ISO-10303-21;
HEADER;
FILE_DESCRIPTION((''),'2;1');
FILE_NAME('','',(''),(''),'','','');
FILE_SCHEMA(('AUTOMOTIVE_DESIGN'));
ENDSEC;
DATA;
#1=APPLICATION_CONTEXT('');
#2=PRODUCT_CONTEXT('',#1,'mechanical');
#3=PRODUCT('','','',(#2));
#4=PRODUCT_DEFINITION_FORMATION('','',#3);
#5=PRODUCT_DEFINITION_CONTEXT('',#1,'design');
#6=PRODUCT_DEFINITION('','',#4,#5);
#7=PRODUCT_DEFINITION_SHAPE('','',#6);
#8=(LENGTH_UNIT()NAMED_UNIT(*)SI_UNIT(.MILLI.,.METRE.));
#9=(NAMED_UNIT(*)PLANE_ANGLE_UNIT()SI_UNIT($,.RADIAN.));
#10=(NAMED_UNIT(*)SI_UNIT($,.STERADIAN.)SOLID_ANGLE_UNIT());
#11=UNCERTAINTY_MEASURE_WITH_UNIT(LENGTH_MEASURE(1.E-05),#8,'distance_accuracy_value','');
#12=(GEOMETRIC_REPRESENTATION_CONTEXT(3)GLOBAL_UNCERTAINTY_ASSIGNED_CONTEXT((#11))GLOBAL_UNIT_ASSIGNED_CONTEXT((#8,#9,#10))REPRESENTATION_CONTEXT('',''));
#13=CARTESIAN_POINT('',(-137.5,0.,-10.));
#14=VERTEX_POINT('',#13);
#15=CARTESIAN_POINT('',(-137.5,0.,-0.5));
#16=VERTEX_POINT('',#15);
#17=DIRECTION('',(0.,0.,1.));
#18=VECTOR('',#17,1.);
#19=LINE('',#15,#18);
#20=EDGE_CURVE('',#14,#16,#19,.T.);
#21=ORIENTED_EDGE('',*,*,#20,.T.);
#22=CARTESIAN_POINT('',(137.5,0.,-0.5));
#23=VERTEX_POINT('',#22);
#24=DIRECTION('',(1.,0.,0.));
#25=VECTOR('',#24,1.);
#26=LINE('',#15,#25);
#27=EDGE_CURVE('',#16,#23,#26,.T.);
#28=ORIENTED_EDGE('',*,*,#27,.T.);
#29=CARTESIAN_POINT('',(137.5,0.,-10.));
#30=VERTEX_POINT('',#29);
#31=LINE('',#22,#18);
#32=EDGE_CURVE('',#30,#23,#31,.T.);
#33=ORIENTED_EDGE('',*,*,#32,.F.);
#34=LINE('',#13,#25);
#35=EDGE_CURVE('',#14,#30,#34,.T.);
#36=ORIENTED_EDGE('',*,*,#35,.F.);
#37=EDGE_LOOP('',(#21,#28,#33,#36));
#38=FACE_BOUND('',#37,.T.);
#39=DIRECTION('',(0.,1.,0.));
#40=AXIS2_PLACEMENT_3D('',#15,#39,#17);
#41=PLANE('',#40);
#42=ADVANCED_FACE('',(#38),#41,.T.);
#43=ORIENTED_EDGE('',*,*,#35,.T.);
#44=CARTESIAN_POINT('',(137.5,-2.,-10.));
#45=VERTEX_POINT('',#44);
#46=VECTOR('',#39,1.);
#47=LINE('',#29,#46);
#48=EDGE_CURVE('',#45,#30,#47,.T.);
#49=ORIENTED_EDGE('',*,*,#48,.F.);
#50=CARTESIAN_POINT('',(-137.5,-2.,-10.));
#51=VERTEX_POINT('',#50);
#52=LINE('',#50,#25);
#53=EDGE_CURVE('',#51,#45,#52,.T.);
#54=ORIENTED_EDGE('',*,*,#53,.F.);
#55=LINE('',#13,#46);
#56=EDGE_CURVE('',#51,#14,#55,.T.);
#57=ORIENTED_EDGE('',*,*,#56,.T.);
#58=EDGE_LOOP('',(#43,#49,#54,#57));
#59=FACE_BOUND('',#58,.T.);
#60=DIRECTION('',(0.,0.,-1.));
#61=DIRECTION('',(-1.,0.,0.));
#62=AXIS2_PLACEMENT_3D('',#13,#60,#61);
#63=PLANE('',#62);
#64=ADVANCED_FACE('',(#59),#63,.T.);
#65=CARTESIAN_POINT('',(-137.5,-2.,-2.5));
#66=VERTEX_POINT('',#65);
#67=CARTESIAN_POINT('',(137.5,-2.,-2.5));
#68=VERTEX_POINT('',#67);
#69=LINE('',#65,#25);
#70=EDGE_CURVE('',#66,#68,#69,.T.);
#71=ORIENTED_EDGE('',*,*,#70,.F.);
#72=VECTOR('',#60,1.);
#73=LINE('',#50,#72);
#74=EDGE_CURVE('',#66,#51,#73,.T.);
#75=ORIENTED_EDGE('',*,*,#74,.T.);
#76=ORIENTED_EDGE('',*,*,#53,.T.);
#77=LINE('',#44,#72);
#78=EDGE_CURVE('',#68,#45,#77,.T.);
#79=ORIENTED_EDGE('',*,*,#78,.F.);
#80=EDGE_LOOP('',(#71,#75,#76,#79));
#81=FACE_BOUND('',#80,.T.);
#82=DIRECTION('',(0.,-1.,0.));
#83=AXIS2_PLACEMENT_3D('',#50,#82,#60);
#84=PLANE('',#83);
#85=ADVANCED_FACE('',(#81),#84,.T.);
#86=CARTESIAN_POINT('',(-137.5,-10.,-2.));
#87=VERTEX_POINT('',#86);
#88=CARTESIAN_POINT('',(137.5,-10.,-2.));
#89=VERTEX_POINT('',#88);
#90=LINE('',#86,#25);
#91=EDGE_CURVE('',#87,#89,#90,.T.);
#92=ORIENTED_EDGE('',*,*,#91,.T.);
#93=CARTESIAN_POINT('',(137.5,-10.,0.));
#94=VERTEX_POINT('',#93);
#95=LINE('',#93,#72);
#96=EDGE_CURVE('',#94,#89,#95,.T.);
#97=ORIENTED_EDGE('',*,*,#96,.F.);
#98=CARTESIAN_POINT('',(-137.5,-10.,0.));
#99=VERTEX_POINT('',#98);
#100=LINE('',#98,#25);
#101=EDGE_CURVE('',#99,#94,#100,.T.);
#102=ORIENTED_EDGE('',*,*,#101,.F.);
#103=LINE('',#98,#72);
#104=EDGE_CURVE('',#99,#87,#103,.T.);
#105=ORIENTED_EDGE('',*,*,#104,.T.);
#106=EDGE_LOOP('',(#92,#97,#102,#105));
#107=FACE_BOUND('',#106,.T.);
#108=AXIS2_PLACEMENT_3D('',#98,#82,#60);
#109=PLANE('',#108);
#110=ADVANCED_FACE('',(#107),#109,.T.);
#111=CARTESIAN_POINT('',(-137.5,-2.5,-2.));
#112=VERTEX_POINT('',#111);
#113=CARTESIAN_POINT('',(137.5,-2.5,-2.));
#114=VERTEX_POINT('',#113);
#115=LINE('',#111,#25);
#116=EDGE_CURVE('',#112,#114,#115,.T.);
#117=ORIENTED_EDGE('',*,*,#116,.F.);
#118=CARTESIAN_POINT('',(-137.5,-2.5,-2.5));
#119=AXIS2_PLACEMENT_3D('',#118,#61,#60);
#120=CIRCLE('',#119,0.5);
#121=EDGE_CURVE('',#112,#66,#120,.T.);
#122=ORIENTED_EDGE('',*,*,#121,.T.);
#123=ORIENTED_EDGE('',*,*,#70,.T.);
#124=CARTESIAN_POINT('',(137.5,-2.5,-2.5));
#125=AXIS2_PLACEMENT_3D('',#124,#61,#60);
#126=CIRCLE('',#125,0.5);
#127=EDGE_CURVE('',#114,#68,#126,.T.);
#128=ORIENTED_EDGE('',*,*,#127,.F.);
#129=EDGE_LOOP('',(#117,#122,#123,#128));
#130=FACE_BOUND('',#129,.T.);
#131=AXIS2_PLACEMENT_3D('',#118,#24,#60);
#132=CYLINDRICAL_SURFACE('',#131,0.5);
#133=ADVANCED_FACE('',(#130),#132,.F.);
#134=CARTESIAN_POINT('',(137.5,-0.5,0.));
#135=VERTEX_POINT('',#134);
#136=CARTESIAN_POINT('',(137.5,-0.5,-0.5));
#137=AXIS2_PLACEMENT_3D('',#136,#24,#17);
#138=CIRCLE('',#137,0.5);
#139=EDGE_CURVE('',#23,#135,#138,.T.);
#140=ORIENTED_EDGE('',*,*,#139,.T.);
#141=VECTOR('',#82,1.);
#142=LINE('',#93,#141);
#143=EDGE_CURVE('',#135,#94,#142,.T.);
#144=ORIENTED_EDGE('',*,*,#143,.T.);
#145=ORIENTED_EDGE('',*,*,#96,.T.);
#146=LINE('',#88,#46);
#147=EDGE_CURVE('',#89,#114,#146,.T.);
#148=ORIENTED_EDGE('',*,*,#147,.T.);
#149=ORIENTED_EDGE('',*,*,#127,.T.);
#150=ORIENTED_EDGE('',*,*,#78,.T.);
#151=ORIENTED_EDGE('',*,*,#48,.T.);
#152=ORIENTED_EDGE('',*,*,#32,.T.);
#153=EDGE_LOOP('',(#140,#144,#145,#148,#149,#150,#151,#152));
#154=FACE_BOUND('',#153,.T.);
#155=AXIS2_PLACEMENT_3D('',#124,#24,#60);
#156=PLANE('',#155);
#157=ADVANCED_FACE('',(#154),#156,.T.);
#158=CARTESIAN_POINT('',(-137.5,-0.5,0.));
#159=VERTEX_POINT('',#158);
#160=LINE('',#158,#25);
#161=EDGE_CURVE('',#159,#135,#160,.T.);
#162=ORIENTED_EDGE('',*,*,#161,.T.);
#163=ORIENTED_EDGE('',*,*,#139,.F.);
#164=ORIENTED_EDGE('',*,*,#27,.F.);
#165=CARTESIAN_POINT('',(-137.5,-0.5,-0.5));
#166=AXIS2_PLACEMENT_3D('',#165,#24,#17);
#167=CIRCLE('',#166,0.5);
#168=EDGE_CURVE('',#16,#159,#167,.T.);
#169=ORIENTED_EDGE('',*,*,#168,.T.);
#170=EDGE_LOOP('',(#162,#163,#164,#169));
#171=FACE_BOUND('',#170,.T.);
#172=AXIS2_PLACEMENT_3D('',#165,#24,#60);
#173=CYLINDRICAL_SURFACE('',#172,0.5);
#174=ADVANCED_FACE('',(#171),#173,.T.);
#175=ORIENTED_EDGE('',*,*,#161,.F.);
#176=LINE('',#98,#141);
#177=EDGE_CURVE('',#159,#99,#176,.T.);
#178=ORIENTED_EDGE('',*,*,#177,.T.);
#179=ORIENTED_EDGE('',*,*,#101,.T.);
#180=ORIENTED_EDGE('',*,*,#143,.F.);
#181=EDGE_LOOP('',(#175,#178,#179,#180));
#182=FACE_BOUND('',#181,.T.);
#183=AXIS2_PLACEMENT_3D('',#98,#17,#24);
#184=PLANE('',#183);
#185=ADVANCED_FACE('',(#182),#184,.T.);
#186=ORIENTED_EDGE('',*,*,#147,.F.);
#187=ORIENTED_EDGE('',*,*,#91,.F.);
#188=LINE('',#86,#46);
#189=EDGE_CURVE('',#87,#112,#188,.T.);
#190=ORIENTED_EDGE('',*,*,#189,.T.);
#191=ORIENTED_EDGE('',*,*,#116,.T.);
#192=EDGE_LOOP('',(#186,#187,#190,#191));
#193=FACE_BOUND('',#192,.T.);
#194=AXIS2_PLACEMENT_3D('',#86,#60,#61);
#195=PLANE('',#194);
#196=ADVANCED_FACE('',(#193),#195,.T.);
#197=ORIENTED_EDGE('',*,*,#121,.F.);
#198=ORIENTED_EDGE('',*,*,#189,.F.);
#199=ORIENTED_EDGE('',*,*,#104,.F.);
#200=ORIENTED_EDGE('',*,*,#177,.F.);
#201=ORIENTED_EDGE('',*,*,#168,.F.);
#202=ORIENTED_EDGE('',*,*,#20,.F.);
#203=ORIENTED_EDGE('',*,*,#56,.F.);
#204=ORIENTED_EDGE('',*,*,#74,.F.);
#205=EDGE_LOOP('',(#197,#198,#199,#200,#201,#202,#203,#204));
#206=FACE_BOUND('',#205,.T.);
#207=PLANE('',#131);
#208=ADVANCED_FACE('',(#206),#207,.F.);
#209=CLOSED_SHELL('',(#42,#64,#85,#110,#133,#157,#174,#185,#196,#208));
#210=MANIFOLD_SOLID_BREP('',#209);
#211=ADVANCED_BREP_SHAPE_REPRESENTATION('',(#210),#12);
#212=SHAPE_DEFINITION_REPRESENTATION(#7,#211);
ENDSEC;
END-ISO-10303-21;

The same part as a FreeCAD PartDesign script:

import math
import FreeCAD as App
import Part
import Sketcher

V = App.Vector
Q = App.Units.Quantity

doc = App.newDocument("Part")
body = doc.addObject("PartDesign::Body", "Body")

sketch1 = doc.addObject("Sketcher::SketchObject", "Sketch")
body.addObject(sketch1)
sketch1.AttachmentSupport = (doc.YZ_Plane, [""])
sketch1.MapMode = "FlatFace"
sketch1.addGeometry(Part.LineSegment(V(-0.5, 0, 0), V(-10, 0, 0)), False)
sketch1.addGeometry(Part.LineSegment(V(-10, 0, 0), V(-10, -2, 0)), False)
sketch1.addGeometry(Part.LineSegment(V(-10, -2, 0), V(-2.5, -2, 0)), False)
sketch1.addGeometry(Part.ArcOfCircle(Part.Circle(V(-2.5, -2.5, 0), V(0, 0, 1), 0.5), math.radians(0), math.radians(90)), False)
sketch1.addGeometry(Part.LineSegment(V(-2, -2.5, 0), V(-2, -10, 0)), False)
sketch1.addGeometry(Part.LineSegment(V(-2, -10, 0), V(0, -10, 0)), False)
sketch1.addGeometry(Part.LineSegment(V(0, -10, 0), V(0, -0.5, 0)), False)
sketch1.addGeometry(Part.ArcOfCircle(Part.Circle(V(-0.5, -0.5, 0), V(0, 0, 1), 0.5), math.radians(0), math.radians(90)), False)
sketch1.addConstraint(Sketcher.Constraint("Coincident", 0, 2, 1, 1))
sketch1.addConstraint(Sketcher.Constraint("Coincident", 1, 2, 2, 1))
sketch1.addConstraint(Sketcher.Constraint("Tangent", 2, 2, 3, 2))
sketch1.addConstraint(Sketcher.Constraint("Tangent", 3, 1, 4, 1))
sketch1.addConstraint(Sketcher.Constraint("Coincident", 4, 2, 5, 1))
sketch1.addConstraint(Sketcher.Constraint("Coincident", 5, 2, 6, 1))
sketch1.addConstraint(Sketcher.Constraint("Tangent", 6, 2, 7, 1))
sketch1.addConstraint(Sketcher.Constraint("Tangent", 7, 2, 0, 1))
sketch1.addConstraint(Sketcher.Constraint("Horizontal", 0))
sketch1.addConstraint(Sketcher.Constraint("Vertical", 1))
sketch1.addConstraint(Sketcher.Constraint("Horizontal", 2))
sketch1.addConstraint(Sketcher.Constraint("Vertical", 4))
sketch1.addConstraint(Sketcher.Constraint("Horizontal", 5))
sketch1.addConstraint(Sketcher.Constraint("Vertical", 6))
sketch1.addConstraint(Sketcher.Constraint("Equal", 3, 7))
sketch1.addConstraint(Sketcher.Constraint("PointOnObject", 0, 2, -1))
sketch1.addConstraint(Sketcher.Constraint("PointOnObject", 5, 2, -2))
sketch1.addConstraint(Sketcher.Constraint("Equal", 5, 1))
sketch1.addConstraint(Sketcher.Constraint("Equal", 2, 4))
sketch1.addConstraint(Sketcher.Constraint("Radius", 3, Q("0.5 mm")))
sketch1.addConstraint(Sketcher.Constraint("DistanceX", 5, 1, 5, 2, Q("2 mm")))
sketch1.addConstraint(Sketcher.Constraint("DistanceX", 0, 2, 0, 1, Q("9.5 mm")))
pad1 = doc.addObject("PartDesign::Pad", "Pad")
body.addObject(pad1)
pad1.Profile = sketch1
pad1.Type = "TwoLengths"
pad1.Length = 137.5
pad1.Length2 = 137.5

doc.recompute()
